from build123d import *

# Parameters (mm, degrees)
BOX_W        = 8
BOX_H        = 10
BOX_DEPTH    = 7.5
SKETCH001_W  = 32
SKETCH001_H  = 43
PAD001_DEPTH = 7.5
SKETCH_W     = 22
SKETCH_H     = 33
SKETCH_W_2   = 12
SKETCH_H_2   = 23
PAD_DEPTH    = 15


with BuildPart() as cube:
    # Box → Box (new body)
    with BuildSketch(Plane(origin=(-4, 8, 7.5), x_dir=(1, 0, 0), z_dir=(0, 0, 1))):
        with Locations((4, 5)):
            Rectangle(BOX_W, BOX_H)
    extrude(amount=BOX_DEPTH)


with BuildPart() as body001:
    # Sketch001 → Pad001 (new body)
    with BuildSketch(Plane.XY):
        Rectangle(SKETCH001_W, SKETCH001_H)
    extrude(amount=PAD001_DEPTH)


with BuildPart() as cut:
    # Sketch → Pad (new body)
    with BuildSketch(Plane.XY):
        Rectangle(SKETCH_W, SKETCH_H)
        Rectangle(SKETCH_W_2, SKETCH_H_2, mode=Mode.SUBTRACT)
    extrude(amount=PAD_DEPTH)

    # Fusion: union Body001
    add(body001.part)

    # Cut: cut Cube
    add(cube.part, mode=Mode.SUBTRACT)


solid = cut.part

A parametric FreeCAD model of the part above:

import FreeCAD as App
import Part
import Sketcher

V = App.Vector

doc = App.newDocument("Part")
body = doc.addObject("PartDesign::Body", "Body")

sketch1 = body.newObject("Sketcher::SketchObject", "Sketch")
sketch1.AttachmentSupport = (doc.getObject("XY_Plane"), [""])
sketch1.MapMode = "FlatFace"
sketch1.AttachmentOffset = App.Placement(V(0, 0, 7.5), App.Rotation())
sketch1.addGeometry([
    Part.LineSegment(V(-4, 18, 0), V(-4, 8, 0)),
    Part.LineSegment(V(-4, 8, 0), V(4, 8, 0)),
    Part.LineSegment(V(4, 8, 0), V(4, 18, 0)),
    Part.LineSegment(V(4, 18, 0), V(-4, 18, 0)),
], False)
sketch1.addConstraint([
    Sketcher.Constraint("Coincident", 0, 2, 1, 1),
    Sketcher.Constraint("Coincident", 1, 2, 2, 1),
    Sketcher.Constraint("Coincident", 2, 2, 3, 1),
    Sketcher.Constraint("Coincident", 3, 2, 0, 1),
    Sketcher.Constraint("Vertical", 0),
    Sketcher.Constraint("Horizontal", 1),
    Sketcher.Constraint("Vertical", 2),
    Sketcher.Constraint("Horizontal", 3),
    Sketcher.Constraint("DistanceX", 1, 1, 1, 2, 8.0),
    Sketcher.Constraint("DistanceY", 0, 2, 0, 1, 10.0),
    Sketcher.Constraint("DistanceX", 0, 2, -1, 1, 4.0),
    Sketcher.Constraint("DistanceY", -1, 1, 0, 2, 8.0),
])
pad1 = body.newObject("PartDesign::Pad", "Pad")
pad1.Profile = sketch1
pad1.Length = 7.5
body2 = doc.addObject("PartDesign::Body", "Body001")

sketch2 = body2.newObject("Sketcher::SketchObject", "Sketch001")
sketch2.AttachmentSupport = (doc.getObject("XY_Plane001"), [""])
sketch2.MapMode = "FlatFace"
sketch2.addGeometry([
    Part.LineSegment(V(-16, 22, 0), V(-16, -22, 0)),
    Part.LineSegment(V(-16, -22, 0), V(16, -22, 0)),
    Part.LineSegment(V(16, -22, 0), V(16, 22, 0)),
    Part.LineSegment(V(16, 22, 0), V(-16, 22, 0)),
], False)
sketch2.addConstraint([
    Sketcher.Constraint("Coincident", 0, 2, 1, 1),
    Sketcher.Constraint("Coincident", 1, 2, 2, 1),
    Sketcher.Constraint("Coincident", 2, 2, 3, 1),
    Sketcher.Constraint("Coincident", 3, 2, 0, 1),
    Sketcher.Constraint("Vertical", 0),
    Sketcher.Constraint("Horizontal", 1),
    Sketcher.Constraint("Vertical", 2),
    Sketcher.Constraint("Horizontal", 3),
    Sketcher.Constraint("Symmetric", 0, 2, 2, 2, -1, 1),
    Sketcher.Constraint("DistanceX", 1, 1, 1, 2, 32.0),
    Sketcher.Constraint("DistanceY", 0, 2, 0, 1, 43.0),
])
pad2 = body2.newObject("PartDesign::Pad", "Pad001")
pad2.Profile = sketch2
pad2.Length = 7.5
body3 = doc.addObject("PartDesign::Body", "Body002")

sketch3 = body3.newObject("Sketcher::SketchObject", "Sketch002")
sketch3.AttachmentSupport = (doc.getObject("XY_Plane002"), [""])
sketch3.MapMode = "FlatFace"
sketch3.addGeometry([
    Part.LineSegment(V(-11, 16, 0), V(-11, -16, 0)),
    Part.LineSegment(V(-11, -16, 0), V(11, -16, 0)),
    Part.LineSegment(V(11, -16, 0), V(11, 16, 0)),
    Part.LineSegment(V(11, 16, 0), V(-11, 16, 0)),
    Part.LineSegment(V(6, -12, 0), V(-6, -12, 0)),
    Part.LineSegment(V(-6, -12, 0), V(-6, 12, 0)),
    Part.LineSegment(V(-6, 12, 0), V(6, 12, 0)),
    Part.LineSegment(V(6, 12, 0), V(6, -12, 0)),
], False)
sketch3.addConstraint([
    Sketcher.Constraint("Coincident", 0, 2, 1, 1),
    Sketcher.Constraint("Coincident", 1, 2, 2, 1),
    Sketcher.Constraint("Coincident", 2, 2, 3, 1),
    Sketcher.Constraint("Coincident", 3, 2, 0, 1),
    Sketcher.Constraint("Coincident", 4, 2, 5, 1),
    Sketcher.Constraint("Coincident", 5, 2, 6, 1),
    Sketcher.Constraint("Coincident", 6, 2, 7, 1),
    Sketcher.Constraint("Coincident", 7, 2, 4, 1),
    Sketcher.Constraint("Vertical", 0),
    Sketcher.Constraint("Horizontal", 1),
    Sketcher.Constraint("Vertical", 2),
    Sketcher.Constraint("Horizontal", 3),
    Sketcher.Constraint("Horizontal", 4),
    Sketcher.Constraint("Vertical", 5),
    Sketcher.Constraint("Horizontal", 6),
    Sketcher.Constraint("Vertical", 7),
    Sketcher.Constraint("Symmetric", 0, 2, 2, 2, -1, 1),
    Sketcher.Constraint("Symmetric", 4, 2, 6, 2, -1, 1),
    Sketcher.Constraint("DistanceX", 1, 1, 1, 2, 22.0),
    Sketcher.Constraint("DistanceX", 4, 2, 4, 1, 12.0),
    Sketcher.Constraint("DistanceY", 0, 2, 0, 1, 33.0),
    Sketcher.Constraint("DistanceY", 5, 1, 5, 2, 23.0),
])
pad3 = body3.newObject("PartDesign::Pad", "Pad002")
pad3.Profile = sketch3
pad3.Length = 15
doc.recompute()

boolean = body3.newObject("PartDesign::Boolean", "Boolean")
boolean.Type = "Fuse"
boolean.addObjects([body2])
doc.recompute()

boolean2 = body3.newObject("PartDesign::Boolean", "Boolean001")
boolean2.Type = "Cut"
boolean2.addObjects([body])

doc.recompute()
